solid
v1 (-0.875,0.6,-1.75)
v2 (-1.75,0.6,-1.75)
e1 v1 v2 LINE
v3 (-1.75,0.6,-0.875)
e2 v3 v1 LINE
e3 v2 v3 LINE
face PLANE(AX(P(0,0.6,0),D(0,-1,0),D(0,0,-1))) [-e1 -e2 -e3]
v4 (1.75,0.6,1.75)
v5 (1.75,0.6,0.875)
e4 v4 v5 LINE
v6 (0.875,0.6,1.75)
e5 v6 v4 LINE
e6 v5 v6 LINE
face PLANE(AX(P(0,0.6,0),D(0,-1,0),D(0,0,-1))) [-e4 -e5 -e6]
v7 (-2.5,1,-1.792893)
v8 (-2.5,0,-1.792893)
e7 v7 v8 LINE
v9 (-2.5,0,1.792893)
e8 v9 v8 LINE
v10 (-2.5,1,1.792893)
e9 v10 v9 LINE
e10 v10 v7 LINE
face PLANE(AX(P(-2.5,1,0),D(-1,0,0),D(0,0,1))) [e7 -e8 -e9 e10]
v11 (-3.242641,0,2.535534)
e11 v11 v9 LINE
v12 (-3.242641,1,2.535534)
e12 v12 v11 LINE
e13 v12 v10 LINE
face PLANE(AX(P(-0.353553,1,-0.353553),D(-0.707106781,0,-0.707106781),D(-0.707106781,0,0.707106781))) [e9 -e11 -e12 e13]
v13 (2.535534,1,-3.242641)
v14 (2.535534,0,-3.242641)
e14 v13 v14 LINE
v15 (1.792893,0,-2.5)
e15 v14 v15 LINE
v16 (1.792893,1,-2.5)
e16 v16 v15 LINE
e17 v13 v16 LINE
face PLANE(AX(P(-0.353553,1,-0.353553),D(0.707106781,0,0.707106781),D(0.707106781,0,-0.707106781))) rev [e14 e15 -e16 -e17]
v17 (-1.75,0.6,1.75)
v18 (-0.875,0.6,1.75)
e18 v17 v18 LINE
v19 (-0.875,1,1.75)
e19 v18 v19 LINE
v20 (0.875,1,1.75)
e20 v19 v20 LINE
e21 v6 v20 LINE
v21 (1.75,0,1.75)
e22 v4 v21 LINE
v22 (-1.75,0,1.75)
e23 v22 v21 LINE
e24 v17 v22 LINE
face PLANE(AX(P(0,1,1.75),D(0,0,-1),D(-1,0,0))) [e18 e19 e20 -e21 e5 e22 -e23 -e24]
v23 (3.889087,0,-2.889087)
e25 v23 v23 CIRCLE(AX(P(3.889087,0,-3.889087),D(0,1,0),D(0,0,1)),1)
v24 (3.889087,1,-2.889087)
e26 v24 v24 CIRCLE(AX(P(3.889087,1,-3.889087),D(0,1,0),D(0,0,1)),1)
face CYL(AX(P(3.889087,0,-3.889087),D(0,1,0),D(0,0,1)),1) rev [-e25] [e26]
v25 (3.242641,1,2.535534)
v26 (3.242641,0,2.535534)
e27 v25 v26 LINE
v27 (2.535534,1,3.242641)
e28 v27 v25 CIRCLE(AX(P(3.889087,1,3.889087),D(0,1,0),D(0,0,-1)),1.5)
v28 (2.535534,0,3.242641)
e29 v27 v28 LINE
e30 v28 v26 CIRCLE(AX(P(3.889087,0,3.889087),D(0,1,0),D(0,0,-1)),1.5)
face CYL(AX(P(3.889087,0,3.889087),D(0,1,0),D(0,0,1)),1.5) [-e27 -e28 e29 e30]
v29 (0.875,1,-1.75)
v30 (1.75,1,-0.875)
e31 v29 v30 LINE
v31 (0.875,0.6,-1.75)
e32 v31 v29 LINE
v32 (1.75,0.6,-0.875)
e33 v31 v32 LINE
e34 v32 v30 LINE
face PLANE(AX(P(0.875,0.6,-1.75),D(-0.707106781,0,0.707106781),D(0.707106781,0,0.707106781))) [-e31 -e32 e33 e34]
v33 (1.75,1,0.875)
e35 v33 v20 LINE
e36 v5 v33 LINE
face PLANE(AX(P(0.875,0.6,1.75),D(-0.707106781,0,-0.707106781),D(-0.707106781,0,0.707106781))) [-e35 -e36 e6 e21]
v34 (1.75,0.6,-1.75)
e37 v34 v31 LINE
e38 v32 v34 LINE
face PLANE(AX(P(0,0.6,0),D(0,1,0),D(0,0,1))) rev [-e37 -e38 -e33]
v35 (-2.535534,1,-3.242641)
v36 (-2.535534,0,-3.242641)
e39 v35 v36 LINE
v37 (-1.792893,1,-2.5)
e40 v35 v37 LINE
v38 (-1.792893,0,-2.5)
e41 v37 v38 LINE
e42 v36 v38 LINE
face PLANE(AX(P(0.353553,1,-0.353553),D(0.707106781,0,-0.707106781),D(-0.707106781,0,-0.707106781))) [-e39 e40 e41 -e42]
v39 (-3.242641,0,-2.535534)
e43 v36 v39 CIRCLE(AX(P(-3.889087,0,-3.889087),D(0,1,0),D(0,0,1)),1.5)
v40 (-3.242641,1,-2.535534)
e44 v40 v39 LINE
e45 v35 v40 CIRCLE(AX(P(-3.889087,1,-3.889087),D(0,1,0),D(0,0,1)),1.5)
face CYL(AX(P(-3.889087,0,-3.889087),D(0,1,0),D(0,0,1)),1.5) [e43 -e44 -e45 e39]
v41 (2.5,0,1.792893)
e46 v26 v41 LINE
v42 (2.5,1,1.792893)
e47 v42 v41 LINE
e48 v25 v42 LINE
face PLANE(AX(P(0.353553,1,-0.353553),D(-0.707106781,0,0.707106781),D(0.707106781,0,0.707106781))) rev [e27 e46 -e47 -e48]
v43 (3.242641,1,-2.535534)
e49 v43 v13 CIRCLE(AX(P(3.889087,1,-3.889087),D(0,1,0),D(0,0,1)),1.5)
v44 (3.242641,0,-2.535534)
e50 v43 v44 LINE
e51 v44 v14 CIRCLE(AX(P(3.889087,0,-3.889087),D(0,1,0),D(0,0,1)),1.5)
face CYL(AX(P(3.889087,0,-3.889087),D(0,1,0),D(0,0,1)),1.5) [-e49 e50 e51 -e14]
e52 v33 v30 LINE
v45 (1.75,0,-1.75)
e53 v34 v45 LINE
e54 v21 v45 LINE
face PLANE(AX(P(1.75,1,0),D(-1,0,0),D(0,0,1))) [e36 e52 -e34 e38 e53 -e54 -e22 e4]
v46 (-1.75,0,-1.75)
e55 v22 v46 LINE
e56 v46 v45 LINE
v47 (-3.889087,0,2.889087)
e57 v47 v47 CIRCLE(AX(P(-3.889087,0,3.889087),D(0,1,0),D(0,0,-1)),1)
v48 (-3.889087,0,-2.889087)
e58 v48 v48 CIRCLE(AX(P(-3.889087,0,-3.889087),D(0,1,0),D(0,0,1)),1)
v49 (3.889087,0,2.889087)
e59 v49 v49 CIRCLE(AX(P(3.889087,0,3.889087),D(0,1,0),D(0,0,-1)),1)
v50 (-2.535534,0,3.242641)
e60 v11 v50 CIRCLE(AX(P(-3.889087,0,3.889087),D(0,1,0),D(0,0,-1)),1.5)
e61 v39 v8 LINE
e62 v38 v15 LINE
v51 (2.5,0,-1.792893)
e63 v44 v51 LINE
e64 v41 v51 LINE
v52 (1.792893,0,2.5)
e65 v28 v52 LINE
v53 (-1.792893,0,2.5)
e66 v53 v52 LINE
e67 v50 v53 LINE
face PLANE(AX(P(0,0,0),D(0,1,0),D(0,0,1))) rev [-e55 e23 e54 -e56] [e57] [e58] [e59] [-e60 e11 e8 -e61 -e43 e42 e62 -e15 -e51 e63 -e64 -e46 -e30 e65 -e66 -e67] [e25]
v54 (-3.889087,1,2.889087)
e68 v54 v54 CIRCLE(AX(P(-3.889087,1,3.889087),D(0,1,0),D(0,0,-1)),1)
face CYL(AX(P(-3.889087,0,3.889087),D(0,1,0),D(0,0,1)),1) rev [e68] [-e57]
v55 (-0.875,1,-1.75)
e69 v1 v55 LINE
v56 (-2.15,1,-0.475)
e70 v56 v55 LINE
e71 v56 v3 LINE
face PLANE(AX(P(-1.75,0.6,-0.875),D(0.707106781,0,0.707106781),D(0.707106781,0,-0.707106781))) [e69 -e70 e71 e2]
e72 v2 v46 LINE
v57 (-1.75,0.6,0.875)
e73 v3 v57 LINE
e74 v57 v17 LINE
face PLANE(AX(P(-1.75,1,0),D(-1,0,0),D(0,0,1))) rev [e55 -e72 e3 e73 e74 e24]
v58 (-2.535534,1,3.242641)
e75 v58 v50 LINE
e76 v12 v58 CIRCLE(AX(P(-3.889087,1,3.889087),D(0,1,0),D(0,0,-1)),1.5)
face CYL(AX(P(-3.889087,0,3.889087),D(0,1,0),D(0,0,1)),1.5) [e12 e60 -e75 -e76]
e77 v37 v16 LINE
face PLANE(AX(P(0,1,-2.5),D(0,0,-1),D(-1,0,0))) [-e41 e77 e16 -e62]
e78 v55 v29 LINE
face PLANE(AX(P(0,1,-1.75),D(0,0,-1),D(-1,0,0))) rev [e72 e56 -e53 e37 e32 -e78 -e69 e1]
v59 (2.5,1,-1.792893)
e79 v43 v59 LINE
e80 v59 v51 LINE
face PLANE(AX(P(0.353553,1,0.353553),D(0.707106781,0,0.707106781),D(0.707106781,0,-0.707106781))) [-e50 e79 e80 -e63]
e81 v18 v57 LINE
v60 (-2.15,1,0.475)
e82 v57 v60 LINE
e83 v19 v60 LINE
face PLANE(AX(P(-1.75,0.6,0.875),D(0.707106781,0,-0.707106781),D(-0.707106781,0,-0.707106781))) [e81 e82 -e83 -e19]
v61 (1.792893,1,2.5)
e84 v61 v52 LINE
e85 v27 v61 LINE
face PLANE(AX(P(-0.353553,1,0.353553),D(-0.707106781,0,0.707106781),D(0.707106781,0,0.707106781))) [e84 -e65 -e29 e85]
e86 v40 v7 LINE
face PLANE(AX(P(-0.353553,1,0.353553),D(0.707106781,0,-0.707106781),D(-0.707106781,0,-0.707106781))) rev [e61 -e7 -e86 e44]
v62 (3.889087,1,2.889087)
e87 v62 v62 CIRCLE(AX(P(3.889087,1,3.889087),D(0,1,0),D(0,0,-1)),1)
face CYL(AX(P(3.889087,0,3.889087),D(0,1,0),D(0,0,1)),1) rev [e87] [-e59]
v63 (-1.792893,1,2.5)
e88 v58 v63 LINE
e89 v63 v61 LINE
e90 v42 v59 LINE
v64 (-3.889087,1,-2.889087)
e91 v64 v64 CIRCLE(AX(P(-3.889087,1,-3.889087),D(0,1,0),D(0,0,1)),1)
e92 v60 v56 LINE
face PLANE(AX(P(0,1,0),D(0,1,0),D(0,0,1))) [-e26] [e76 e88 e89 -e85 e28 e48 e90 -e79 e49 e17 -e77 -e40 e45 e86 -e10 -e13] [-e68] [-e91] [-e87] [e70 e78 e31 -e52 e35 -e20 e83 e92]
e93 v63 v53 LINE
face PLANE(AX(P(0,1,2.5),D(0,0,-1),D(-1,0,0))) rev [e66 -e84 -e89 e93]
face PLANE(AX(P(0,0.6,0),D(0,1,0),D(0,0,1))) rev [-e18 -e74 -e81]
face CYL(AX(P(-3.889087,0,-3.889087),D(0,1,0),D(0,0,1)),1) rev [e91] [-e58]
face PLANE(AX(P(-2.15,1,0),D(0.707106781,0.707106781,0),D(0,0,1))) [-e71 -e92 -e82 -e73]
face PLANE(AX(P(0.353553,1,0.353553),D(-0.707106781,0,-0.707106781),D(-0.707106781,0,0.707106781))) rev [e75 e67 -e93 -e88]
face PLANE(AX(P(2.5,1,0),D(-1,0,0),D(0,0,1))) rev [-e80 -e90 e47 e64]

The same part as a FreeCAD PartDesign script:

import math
import FreeCAD as App
import Part
import Sketcher
from FreeCAD import Vector


def edges_at(feature, points):
    """Names of the edges that pass closest to the given points."""
    edges = feature.Shape.Edges
    near = lambda p: min(range(len(edges)), key=lambda i: edges[i].distToShape(Part.Vertex(*p))[0])
    return sorted({f"Edge{near(p) + 1}" for p in points})

doc = App.newDocument("Part")
body = doc.addObject("PartDesign::Body", "Body")

# Sketch on XZ plane
sketch1 = body.newObject("Sketcher::SketchObject", "Sketch")
sketch1.AttachmentSupport = (doc.getObject("XZ_Plane"), [""])
sketch1.MapMode = "FlatFace"
sketch1.addGeometry([
    Part.ArcOfCircle(Part.Circle(Vector(-4.6, -4.6, 0), Vector(0, 0, 1), 0.5), math.radians(135), math.radians(315)),  # 0
    Part.LineSegment(Vector(-4.9, -4.2, 0), Vector(-2.5, -1.8, 0)),  # 1
    Part.LineSegment(Vector(-2.5, -1.8, 0), Vector(-2.5, 1.8, 0)),  # 2
    Part.LineSegment(Vector(-2.5, 1.8, 0), Vector(-4.9, 4.2, 0)),  # 3
    Part.ArcOfCircle(Part.Circle(Vector(-4.6, 4.6, 0), Vector(0, 0, 1), 0.5), math.radians(45), math.radians(225)),  # 4
    Part.LineSegment(Vector(-4.2, 4.9, 0), Vector(-1.8, 2.5, 0)),  # 5
    Part.LineSegment(Vector(-1.8, 2.5, 0), Vector(1.8, 2.5, 0)),  # 6
    Part.LineSegment(Vector(1.8, 2.5, 0), Vector(4.2, 4.9, 0)),  # 7
    Part.ArcOfCircle(Part.Circle(Vector(4.6, 4.6, 0), Vector(0, 0, 1), 0.5), math.radians(-45), math.radians(135)),  # 8
    Part.LineSegment(Vector(4.9, 4.2, 0), Vector(2.5, 1.8, 0)),  # 9
    Part.LineSegment(Vector(2.5, 1.8, 0), Vector(2.5, -1.8, 0)),  # 10
    Part.LineSegment(Vector(2.5, -1.8, 0), Vector(4.9, -4.2, 0)),  # 11
    Part.ArcOfCircle(Part.Circle(Vector(4.6, -4.6, 0), Vector(0, 0, 1), 0.5), math.radians(-135), math.radians(45)),  # 12
    Part.LineSegment(Vector(4.2, -4.9, 0), Vector(1.8, -2.5, 0)),  # 13
    Part.LineSegment(Vector(1.8, -2.5, 0), Vector(-1.8, -2.5, 0)),  # 14
    Part.LineSegment(Vector(-1.8, -2.5, 0), Vector(-4.2, -4.9, 0)),  # 15
    Part.LineSegment(Vector(-1.8, 1.8, 0), Vector(-1.8, -1.8, 0)),  # 16
    Part.LineSegment(Vector(-1.8, -1.8, 0), Vector(1.8, -1.8, 0)),  # 17
    Part.LineSegment(Vector(1.8, -1.8, 0), Vector(1.8, 1.8, 0)),  # 18
    Part.LineSegment(Vector(1.8, 1.8, 0), Vector(-1.8, 1.8, 0)),  # 19
], False)
sketch1.addConstraint([
    Sketcher.Constraint("Tangent", 0, 1, 1, 1),
    Sketcher.Constraint("Coincident", 1, 2, 2, 1),
    Sketcher.Constraint("Coincident", 2, 2, 3, 1),
    Sketcher.Constraint("Tangent", 3, 2, 4, 2),
    Sketcher.Constraint("Tangent", 4, 1, 5, 1),
    Sketcher.Constraint("Coincident", 5, 2, 6, 1),
    Sketcher.Constraint("Coincident", 6, 2, 7, 1),
    Sketcher.Constraint("Tangent", 7, 2, 8, 2),
    Sketcher.Constraint("Tangent", 8, 1, 9, 1),
    Sketcher.Constraint("Coincident", 9, 2, 10, 1),
    Sketcher.Constraint("Coincident", 10, 2, 11, 1),
    Sketcher.Constraint("Tangent", 11, 2, 12, 2),
    Sketcher.Constraint("Tangent", 12, 1, 13, 1),
    Sketcher.Constraint("Coincident", 13, 2, 14, 1),
    Sketcher.Constraint("Coincident", 14, 2, 15, 1),
    Sketcher.Constraint("Tangent", 15, 2, 0, 2),
    Sketcher.Constraint("Coincident", 16, 2, 17, 1),
    Sketcher.Constraint("Coincident", 17, 2, 18, 1),
    Sketcher.Constraint("Coincident", 18, 2, 19, 1),
    Sketcher.Constraint("Coincident", 19, 2, 16, 1),
    Sketcher.Constraint("Vertical", 2),
    Sketcher.Constraint("Horizontal", 6),
    Sketcher.Constraint("Vertical", 10),
    Sketcher.Constraint("Horizontal", 14),
    Sketcher.Constraint("Vertical", 16),
    Sketcher.Constraint("Horizontal", 17),
    Sketcher.Constraint("Vertical", 18),
    Sketcher.Constraint("Horizontal", 19),
    Sketcher.Constraint("Equal", 0, 4),
    Sketcher.Constraint("Equal", 4, 8),
    Sketcher.Constraint("Equal", 8, 12),
    Sketcher.Constraint("Symmetric", 0, 3, 8, 3, -1, 1),
    Sketcher.Constraint("Symmetric", 4, 3, 12, 3, -1, 1),
    Sketcher.Constraint("Symmetric", 1, 2, 9, 2, -1, 1),
    Sketcher.Constraint("Symmetric", 5, 2, 13, 2, -1, 1),
    Sketcher.Constraint("Symmetric", 16, 2, 18, 2, -1, 1),
    Sketcher.Constraint("Symmetric", 4, 3, 8, 3, -2),
    Sketcher.Constraint("Perpendicular", 1, 3),
    Sketcher.Constraint("Parallel", 3, 5),
    Sketcher.Constraint("Perpendicular", 5, 7),
    Sketcher.Constraint("Perpendicular", 9, 11),
    Sketcher.Constraint("Perpendicular", 13, 15),
    Sketcher.Constraint("Horizontal", 4, 1, 7, 2),
    Sketcher.Constraint("Equal", 14, 2),
    Sketcher.Constraint("Equal", 19, 16),
    Sketcher.Constraint("Equal", 3, 5),
    Sketcher.Constraint("Radius", 0, 0.5),
    Sketcher.Constraint("DistanceX", 17, 1, 17, 2, 3.5),
    Sketcher.Constraint("DistanceX", 1, 2, 10, 2, 5.0),
    Sketcher.Constraint("DistanceY", 0, 3, 1, 2, 2.803301),
])
pad1 = body.newObject("PartDesign::Pad", "Pad")
pad1.Profile = sketch1
pad1.Length = 1
pad1.Reversed = True

# Sketch on XZ plane
sketch2 = body.newObject("Sketcher::SketchObject", "Sketch001")
sketch2.AttachmentSupport = (doc.getObject("XZ_Plane"), [""])
sketch2.MapMode = "FlatFace"
sketch2.AttachmentOffset = App.Placement(Vector(0, 0, -1), App.Rotation())
sketch2.addGeometry([
    Part.LineSegment(Vector(-1.8, -0.9, 0), Vector(-0.9, -1.8, 0)),  # 0
    Part.LineSegment(Vector(-0.9, -1.8, 0), Vector(-1.8, -1.8, 0)),  # 1
    Part.LineSegment(Vector(-1.8, -1.8, 0), Vector(-1.8, -0.9, 0)),  # 2
    Part.LineSegment(Vector(1.8, 1.8, 0), Vector(1.8, 0.9, 0)),  # 3
    Part.LineSegment(Vector(1.8, 0.9, 0), Vector(0.9, 1.8, 0)),  # 4
    Part.LineSegment(Vector(0.9, 1.8, 0), Vector(1.8, 1.8, 0)),  # 5
    Part.LineSegment(Vector(0.9, -1.8, 0), Vector(1.8, -0.9, 0)),  # 6
    Part.LineSegment(Vector(1.8, -0.9, 0), Vector(1.8, -1.8, 0)),  # 7
    Part.LineSegment(Vector(1.8, -1.8, 0), Vector(0.9, -1.8, 0)),  # 8
    Part.LineSegment(Vector(-1.8, 1.8, 0), Vector(-0.9, 1.8, 0)),  # 9
    Part.LineSegment(Vector(-0.9, 1.8, 0), Vector(-1.8, 0.9, 0)),  # 10
    Part.LineSegment(Vector(-1.8, 0.9, 0), Vector(-1.8, 1.8, 0)),  # 11
], False)
sketch2.addConstraint([
    Sketcher.Constraint("Coincident", 0, 2, 1, 1),
    Sketcher.Constraint("Coincident", 1, 2, 2, 1),
    Sketcher.Constraint("Coincident", 2, 2, 0, 1),
    Sketcher.Constraint("Coincident", 3, 2, 4, 1),
    Sketcher.Constraint("Coincident", 4, 2, 5, 1),
    Sketcher.Constraint("Coincident", 5, 2, 3, 1),
    Sketcher.Constraint("Coincident", 6, 2, 7, 1),
    Sketcher.Constraint("Coincident", 7, 2, 8, 1),
    Sketcher.Constraint("Coincident", 8, 2, 6, 1),
    Sketcher.Constraint("Coincident", 9, 2, 10, 1),
    Sketcher.Constraint("Coincident", 10, 2, 11, 1),
    Sketcher.Constraint("Coincident", 11, 2, 9, 1),
    Sketcher.Constraint("Horizontal", 1),
    Sketcher.Constraint("Vertical", 2),
    Sketcher.Constraint("Vertical", 3),
    Sketcher.Constraint("Horizontal", 5),
    Sketcher.Constraint("Vertical", 7),
    Sketcher.Constraint("Horizontal", 8),
    Sketcher.Constraint("Horizontal", 9),
    Sketcher.Constraint("Vertical", 11),
    Sketcher.Constraint("Symmetric", 2, 2, 3, 2, -1, 1),
    Sketcher.Constraint("Symmetric", 0, 2, 4, 2, -1, 1),
    Sketcher.Constraint("Symmetric", 8, 2, 9, 2, -1, 1),
    Sketcher.Constraint("Symmetric", 6, 2, 10, 2, -1, 1),
    Sketcher.Constraint("Symmetric", 2, 2, 6, 2, -2),
    Sketcher.Constraint("Symmetric", 0, 2, 8, 2, -2),
    Sketcher.Constraint("Perpendicular", 4, 6),
    Sketcher.Constraint("DistanceX", 2, 2, 3, 2, 3.5),
    Sketcher.Constraint("DistanceY", 0, 2, 4, 2, 3.5),
    Sketcher.Constraint("DistanceX", 1, 2, 1, 1, 0.875),
])
pad2 = body.newObject("PartDesign::Pad", "Pad001")
pad2.Profile = sketch2
pad2.Length = 0.4
doc.recompute()

chamfer = body.newObject("PartDesign::Chamfer", "Chamfer")
chamfer.Base = (pad2, edges_at(pad2, [(-1.75, 1, 0)]))
chamfer.Size = 0.4

# Sketch on XZ plane
sketch3 = body.newObject("Sketcher::SketchObject", "Sketch002")
sketch3.AttachmentSupport = (doc.getObject("XZ_Plane"), [""])
sketch3.MapMode = "FlatFace"
sketch3.AttachmentOffset = App.Placement(Vector(0, 0, -1), App.Rotation())
sketch3.addGeometry([
    Part.Circle(Vector(-3.9, -3.9, 0), Vector(0, 0, 1), 1.5),
    Part.Circle(Vector(3.9, 3.9, 0), Vector(0, 0, 1), 1.5),
    Part.Circle(Vector(3.9, -3.9, 0), Vector(0, 0, 1), 1.5),
    Part.Circle(Vector(-3.9, 3.9, 0), Vector(0, 0, 1), 1.5),
], False)
sketch3.addConstraint([
    Sketcher.Constraint("Equal", 0, 1),
    Sketcher.Constraint("Equal", 1, 2),
    Sketcher.Constraint("Equal", 2, 3),
    Sketcher.Constraint("Symmetric", 0, 3, 1, 3, -1, 1),
    Sketcher.Constraint("Symmetric", 2, 3, 3, 3, -1, 1),
    Sketcher.Constraint("Symmetric", 0, 3, 2, 3, -2),
    Sketcher.Constraint("Diameter", 0, 3.0),
    Sketcher.Constraint("DistanceX", 0, 3, -1, 1, 3.889087),
    Sketcher.Constraint("DistanceY", 0, 3, -1, 1, 3.889087),
])
pad3 = body.newObject("PartDesign::Pad", "Pad002")
pad3.Profile = sketch3
pad3.Length = 1

# Sketch on XZ plane
sketch4 = body.newObject("Sketcher::SketchObject", "Sketch003")
sketch4.AttachmentSupport = (doc.getObject("XZ_Plane"), [""])
sketch4.MapMode = "FlatFace"
sketch4.AttachmentOffset = App.Placement(Vector(0, 0, -1), App.Rotation())
sketch4.addGeometry([
    Part.Circle(Vector(-3.9, -3.9, 0), Vector(0, 0, 1), 1),
    Part.Circle(Vector(3.9, 3.9, 0), Vector(0, 0, 1), 1),
    Part.Circle(Vector(3.9, -3.9, 0), Vector(0, 0, 1), 1),
    Part.Circle(Vector(-3.9, 3.9, 0), Vector(0, 0, 1), 1),
], False)
sketch4.addConstraint([
    Sketcher.Constraint("Equal", 0, 1),
    Sketcher.Constraint("Equal", 1, 2),
    Sketcher.Constraint("Equal", 2, 3),
    Sketcher.Constraint("Symmetric", 0, 3, 1, 3, -1, 1),
    Sketcher.Constraint("Symmetric", 2, 3, 3, 3, -1, 1),
    Sketcher.Constraint("Symmetric", 0, 3, 2, 3, -2),
    Sketcher.Constraint("Diameter", 0, 2.0),
    Sketcher.Constraint("DistanceX", 0, 3, -1, 1, 3.889087),
    Sketcher.Constraint("DistanceY", 0, 3, -1, 1, 3.889087),
])
pocket1 = body.newObject("PartDesign::Pocket", "Pocket")
pocket1.Profile = sketch4
pocket1.Length = 1
pocket1.Reversed = True

doc.recompute()
